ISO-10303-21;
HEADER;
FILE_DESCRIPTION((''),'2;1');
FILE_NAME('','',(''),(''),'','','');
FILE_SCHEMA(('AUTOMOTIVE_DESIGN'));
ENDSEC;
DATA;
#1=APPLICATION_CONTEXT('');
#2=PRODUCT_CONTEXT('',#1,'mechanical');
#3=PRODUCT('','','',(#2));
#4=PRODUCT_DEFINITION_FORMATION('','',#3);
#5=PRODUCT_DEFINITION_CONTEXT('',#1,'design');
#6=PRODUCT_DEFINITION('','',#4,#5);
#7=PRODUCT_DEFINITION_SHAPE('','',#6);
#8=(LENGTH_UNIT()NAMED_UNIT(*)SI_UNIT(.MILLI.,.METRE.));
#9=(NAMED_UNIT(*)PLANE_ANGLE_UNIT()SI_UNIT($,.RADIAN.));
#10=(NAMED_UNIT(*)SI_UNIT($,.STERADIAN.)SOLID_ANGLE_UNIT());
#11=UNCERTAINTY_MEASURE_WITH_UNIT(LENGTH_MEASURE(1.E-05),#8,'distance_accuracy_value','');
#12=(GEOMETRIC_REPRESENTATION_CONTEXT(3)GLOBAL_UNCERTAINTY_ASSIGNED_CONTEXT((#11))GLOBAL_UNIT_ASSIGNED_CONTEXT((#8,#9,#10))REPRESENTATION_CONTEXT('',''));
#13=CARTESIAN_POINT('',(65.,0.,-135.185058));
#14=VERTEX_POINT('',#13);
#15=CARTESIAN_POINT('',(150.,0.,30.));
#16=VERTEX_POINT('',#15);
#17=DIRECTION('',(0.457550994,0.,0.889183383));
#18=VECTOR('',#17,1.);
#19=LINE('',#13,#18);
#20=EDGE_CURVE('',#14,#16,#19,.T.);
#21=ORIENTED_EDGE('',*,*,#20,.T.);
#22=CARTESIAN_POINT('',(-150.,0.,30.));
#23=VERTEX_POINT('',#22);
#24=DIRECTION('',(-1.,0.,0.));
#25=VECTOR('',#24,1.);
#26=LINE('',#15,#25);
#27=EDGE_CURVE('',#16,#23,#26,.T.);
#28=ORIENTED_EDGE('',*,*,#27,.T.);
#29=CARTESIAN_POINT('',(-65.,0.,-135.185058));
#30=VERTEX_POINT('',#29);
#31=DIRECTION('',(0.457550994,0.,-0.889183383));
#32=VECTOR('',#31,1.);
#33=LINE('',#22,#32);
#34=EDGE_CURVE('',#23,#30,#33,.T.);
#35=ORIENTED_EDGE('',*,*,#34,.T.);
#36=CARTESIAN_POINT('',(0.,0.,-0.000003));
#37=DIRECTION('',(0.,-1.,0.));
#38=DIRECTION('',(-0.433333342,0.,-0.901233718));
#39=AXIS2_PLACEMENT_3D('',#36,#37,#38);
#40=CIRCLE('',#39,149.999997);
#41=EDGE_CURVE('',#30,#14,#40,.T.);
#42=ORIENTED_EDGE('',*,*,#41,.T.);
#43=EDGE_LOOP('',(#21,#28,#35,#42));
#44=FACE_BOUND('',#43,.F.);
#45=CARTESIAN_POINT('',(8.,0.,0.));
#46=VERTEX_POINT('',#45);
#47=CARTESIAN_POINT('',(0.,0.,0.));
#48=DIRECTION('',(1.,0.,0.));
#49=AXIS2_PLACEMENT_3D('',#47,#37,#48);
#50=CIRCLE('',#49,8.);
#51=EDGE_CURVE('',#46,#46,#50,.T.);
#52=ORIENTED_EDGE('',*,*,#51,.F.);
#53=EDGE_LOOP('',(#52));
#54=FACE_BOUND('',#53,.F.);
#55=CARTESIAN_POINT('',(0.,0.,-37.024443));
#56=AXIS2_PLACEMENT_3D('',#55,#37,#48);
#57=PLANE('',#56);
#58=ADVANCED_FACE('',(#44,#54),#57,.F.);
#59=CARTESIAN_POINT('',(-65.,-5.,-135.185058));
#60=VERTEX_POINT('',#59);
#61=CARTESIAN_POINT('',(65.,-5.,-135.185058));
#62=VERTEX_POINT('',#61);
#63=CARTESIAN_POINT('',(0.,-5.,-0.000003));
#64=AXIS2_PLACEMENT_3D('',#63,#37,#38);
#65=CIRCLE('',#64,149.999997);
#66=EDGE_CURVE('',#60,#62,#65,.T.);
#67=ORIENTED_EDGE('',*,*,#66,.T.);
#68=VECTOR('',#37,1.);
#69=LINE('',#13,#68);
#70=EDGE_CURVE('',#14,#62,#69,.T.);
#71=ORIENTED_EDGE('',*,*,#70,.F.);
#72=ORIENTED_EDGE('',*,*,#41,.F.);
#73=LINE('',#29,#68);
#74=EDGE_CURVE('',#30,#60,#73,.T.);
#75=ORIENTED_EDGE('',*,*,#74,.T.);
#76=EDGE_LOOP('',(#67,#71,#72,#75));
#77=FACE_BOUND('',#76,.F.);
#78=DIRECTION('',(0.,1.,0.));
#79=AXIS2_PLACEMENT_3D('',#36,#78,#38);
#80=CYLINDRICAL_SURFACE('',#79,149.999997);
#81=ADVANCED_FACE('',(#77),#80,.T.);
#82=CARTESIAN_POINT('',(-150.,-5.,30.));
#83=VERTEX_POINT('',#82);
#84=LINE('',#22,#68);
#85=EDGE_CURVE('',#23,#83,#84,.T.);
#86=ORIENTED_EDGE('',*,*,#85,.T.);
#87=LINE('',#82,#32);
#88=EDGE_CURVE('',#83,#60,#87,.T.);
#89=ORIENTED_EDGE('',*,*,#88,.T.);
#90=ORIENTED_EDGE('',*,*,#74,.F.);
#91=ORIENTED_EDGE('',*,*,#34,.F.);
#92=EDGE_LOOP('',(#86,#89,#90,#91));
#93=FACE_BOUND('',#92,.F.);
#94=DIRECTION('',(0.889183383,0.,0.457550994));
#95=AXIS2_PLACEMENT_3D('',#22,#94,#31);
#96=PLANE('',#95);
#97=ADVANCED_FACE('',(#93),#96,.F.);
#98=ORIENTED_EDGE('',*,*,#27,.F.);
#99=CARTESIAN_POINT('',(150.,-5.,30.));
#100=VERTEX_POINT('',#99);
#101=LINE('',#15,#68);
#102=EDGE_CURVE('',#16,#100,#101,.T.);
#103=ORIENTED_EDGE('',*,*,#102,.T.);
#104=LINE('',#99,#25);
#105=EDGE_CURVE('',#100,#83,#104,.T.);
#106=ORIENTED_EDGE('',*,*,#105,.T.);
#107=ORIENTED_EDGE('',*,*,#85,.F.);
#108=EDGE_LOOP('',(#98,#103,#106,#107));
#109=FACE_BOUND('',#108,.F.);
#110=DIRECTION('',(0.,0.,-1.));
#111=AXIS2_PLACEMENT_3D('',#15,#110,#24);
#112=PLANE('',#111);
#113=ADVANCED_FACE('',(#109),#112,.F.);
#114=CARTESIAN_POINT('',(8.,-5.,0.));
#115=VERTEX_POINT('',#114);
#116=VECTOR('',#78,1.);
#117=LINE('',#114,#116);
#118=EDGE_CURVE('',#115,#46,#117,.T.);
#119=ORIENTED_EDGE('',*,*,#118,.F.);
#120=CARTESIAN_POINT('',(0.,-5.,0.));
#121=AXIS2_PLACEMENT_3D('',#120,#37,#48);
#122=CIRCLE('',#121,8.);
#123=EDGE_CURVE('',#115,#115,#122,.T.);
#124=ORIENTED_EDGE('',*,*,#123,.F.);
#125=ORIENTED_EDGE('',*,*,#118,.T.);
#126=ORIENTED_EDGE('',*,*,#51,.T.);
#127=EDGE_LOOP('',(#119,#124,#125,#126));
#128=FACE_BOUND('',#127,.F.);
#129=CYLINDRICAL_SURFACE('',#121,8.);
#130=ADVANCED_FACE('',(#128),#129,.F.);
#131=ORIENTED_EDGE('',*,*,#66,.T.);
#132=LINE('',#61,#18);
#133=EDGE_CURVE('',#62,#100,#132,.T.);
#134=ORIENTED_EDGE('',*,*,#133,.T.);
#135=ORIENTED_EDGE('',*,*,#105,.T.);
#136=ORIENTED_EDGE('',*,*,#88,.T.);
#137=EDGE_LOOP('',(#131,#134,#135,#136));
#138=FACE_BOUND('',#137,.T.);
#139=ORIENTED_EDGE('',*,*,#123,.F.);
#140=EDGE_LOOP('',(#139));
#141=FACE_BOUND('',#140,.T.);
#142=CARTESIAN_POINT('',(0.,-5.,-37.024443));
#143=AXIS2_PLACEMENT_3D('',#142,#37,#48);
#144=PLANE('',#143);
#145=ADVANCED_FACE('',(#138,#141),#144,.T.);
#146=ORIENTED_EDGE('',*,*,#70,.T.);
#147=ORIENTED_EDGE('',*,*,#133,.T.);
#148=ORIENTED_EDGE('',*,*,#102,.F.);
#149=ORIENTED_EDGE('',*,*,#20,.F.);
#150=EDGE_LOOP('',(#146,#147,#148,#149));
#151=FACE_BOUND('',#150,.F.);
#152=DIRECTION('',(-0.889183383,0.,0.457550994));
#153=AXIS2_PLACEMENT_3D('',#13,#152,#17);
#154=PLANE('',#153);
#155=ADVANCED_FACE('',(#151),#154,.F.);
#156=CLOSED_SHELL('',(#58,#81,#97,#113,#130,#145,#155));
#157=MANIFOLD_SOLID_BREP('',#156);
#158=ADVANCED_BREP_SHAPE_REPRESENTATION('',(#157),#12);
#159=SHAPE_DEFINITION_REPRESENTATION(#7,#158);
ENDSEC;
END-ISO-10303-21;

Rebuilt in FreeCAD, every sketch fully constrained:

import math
import FreeCAD as App
import Part
import Sketcher
from FreeCAD import Vector

doc = App.newDocument("Part")
params = doc.addObject("Spreadsheet::Sheet", "Params")
for row, (alias, value) in enumerate([
    ("sketch1_width", "300 mm"),
    ("pad1_length", "5 mm"),
    ("sketch2_diameter", "16 mm"),
], start=1):
    params.set(f"A{row}", alias)
    params.set(f"B{row}", "=" + value)
    params.setAlias(f"B{row}", alias)

body = doc.addObject("PartDesign::Body", "Body")

# Sketch on XZ plane
sketch1 = doc.addObject("Sketcher::SketchObject", "Sketch")
body.addObject(sketch1)
sketch1.AttachmentSupport = (doc.XZ_Plane, [""])
sketch1.MapMode = "FlatFace"
sketch1.addGeometry(Part.LineSegment(Vector(-150, 30, 0), Vector(-65, -135.185058, 0)), False)
sketch1.addGeometry(Part.ArcOfCircle(Part.Circle(Vector(0, -0.000003, 0), Vector(0, 0, 1), 149.999997), math.radians(-115.679289), math.radians(-64.320711)), False)
sketch1.addGeometry(Part.LineSegment(Vector(65, -135.185058, 0), Vector(150, 30, 0)), False)
sketch1.addGeometry(Part.LineSegment(Vector(150, 30, 0), Vector(-150, 30, 0)), False)
sketch1.addConstraint(Sketcher.Constraint("Coincident", 0, 2, 1, 1))
sketch1.addConstraint(Sketcher.Constraint("Coincident", 1, 2, 2, 1))
sketch1.addConstraint(Sketcher.Constraint("Coincident", 2, 2, 3, 1))
sketch1.addConstraint(Sketcher.Constraint("Coincident", 3, 2, 0, 1))
sketch1.addConstraint(Sketcher.Constraint("Horizontal", 3))
sketch1.addConstraint(Sketcher.Constraint("Coincident", 1, 3, -1, 1))
sketch1.addConstraint(Sketcher.Constraint("Horizontal", 0, 2, 1, 2))
sketch1.addConstraint(Sketcher.Constraint("Equal", 0, 2))
sketch1.addConstraint(Sketcher.Constraint("DistanceX", 3, 2, 3, 1, 300.0))
sketch1.addConstraint(Sketcher.Constraint("DistanceX", 0, 2, -1, 1, 65.0))
sketch1.addConstraint(Sketcher.Constraint("DistanceY", -1, 1, 2, 2, 30.0))
sketch1.addConstraint(Sketcher.Constraint("Radius", 1, 149.999997))
sketch1.setExpression("Constraints[8]", "Params.sketch1_width")
pad1 = doc.addObject("PartDesign::Pad", "Pad")
body.addObject(pad1)
pad1.Profile = sketch1
pad1.setExpression("Length", "Params.pad1_length")

# Sketch on XZ plane
sketch2 = doc.addObject("Sketcher::SketchObject", "Sketch001")
body.addObject(sketch2)
sketch2.AttachmentSupport = (doc.XZ_Plane, [""])
sketch2.MapMode = "FlatFace"
sketch2.AttachmentOffset = App.Placement(Vector(0, 0, 5), App.Rotation())
sketch2.addGeometry(Part.Circle(Vector(0, 0, 0), Vector(0, 0, 1), 8), False)
sketch2.addConstraint(Sketcher.Constraint("Coincident", 0, 3, -1, 1))
sketch2.addConstraint(Sketcher.Constraint("Diameter", 0, 16.0))
sketch2.setExpression("Constraints[1]", "Params.sketch2_diameter")
pocket1 = doc.addObject("PartDesign::Pocket", "Pocket")
body.addObject(pocket1)
pocket1.Profile = sketch2
pocket1.Type = "ThroughAll"

doc.recompute()
